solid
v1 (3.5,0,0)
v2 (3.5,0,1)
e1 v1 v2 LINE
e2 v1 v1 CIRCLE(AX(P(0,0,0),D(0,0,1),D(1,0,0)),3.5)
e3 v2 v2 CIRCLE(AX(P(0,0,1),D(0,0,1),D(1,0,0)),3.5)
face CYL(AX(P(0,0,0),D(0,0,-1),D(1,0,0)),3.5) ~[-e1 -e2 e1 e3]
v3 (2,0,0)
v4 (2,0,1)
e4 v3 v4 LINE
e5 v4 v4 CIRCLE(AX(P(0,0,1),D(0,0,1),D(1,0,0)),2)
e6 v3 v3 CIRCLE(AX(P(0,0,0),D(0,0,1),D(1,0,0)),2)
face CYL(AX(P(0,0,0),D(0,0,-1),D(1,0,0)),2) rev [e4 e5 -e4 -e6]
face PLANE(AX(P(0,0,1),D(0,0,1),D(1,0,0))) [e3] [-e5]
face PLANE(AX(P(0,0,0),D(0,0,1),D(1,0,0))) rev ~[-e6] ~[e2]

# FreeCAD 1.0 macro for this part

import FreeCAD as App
import Part
import Sketcher
Q = App.Units.Quantity

doc = App.newDocument("Part")
body = doc.addObject("PartDesign::Body", "Body")

# Sketch on XY plane
sketch1 = body.newObject("Sketcher::SketchObject", "Sketch")
sketch1.AttachmentSupport = (doc.getObject("XY_Plane"), [""])
sketch1.MapMode = "FlatFace"
sketch1.addGeometry(Part.Circle(App.Vector(0, 0, 0), App.Vector(0, 0, 1), 3.5), False)
sketch1.addGeometry(Part.Circle(App.Vector(0, 0, 0), App.Vector(0, 0, 1), 2), False)
sketch1.addConstraint(Sketcher.Constraint("Coincident", 0, 3, -1, 1))
sketch1.addConstraint(Sketcher.Constraint("Coincident", 1, 3, -1, 1))
sketch1.addConstraint(Sketcher.Constraint("Diameter", 0, Q("7 mm")))
sketch1.addConstraint(Sketcher.Constraint("Diameter", 1, Q("4 mm")))
pad1 = body.newObject("PartDesign::Pad", "Pad")
pad1.Profile = sketch1
pad1.Length = 1

doc.recompute()
